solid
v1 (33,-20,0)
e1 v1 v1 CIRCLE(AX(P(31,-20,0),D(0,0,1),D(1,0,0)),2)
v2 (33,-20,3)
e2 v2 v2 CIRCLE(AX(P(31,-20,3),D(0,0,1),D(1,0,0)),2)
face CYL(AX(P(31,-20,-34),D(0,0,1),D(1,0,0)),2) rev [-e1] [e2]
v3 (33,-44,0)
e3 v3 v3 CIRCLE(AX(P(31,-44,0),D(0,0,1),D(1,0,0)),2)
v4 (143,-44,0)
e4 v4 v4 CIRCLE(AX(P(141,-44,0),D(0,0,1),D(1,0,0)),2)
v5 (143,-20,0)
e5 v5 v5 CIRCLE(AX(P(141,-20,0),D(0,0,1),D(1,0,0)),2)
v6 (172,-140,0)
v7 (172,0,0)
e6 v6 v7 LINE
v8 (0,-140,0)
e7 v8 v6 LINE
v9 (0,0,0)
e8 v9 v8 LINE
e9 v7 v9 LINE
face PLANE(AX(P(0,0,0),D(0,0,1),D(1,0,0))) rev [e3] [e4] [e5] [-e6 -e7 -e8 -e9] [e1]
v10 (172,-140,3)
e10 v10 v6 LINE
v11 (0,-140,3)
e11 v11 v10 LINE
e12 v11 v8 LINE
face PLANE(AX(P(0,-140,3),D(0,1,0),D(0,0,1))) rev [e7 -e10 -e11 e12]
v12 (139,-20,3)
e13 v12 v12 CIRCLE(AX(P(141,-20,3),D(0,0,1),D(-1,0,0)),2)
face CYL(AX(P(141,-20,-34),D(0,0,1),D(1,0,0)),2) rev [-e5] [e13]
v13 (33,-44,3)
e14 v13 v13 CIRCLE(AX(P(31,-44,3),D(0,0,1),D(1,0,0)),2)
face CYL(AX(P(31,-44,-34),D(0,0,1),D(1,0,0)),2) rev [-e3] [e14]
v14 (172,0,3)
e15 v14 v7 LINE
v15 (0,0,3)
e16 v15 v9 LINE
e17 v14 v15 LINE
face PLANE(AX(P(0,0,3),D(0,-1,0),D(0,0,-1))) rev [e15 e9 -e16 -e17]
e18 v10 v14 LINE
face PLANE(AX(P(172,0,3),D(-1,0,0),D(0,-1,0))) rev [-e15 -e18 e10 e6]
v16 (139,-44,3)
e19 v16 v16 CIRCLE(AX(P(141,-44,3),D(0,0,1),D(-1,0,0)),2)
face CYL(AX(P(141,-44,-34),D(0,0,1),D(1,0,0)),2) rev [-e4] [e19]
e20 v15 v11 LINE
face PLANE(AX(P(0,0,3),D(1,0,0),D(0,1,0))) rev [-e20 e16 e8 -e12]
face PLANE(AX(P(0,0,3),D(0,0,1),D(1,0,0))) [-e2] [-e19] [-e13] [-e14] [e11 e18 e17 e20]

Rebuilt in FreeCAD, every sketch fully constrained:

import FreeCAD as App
import Part
import Sketcher
Q = App.Units.Quantity


def add_polygon(sketch, points):
    """Adds a closed chain of lines whose ends are joined by coincident constraints."""
    first, n = sketch.GeometryCount, len(points)
    for a, b in zip(points, points[1:] + points[:1]):
        sketch.addGeometry(Part.LineSegment(App.Vector(*a, 0), App.Vector(*b, 0)), False)
    for i in range(n):
        sketch.addConstraint(Sketcher.Constraint("Coincident", first + i, 2, first + (i + 1) % n, 1))

doc = App.newDocument("Part")
body = doc.addObject("PartDesign::Body", "Body")

# Sketch on XY plane
sketch1 = doc.addObject("Sketcher::SketchObject", "Sketch")
body.addObject(sketch1)
sketch1.AttachmentSupport = (doc.XY_Plane, [""])
sketch1.MapMode = "FlatFace"
add_polygon(sketch1, [(0, 0), (0, -140), (172, -140), (172, 0)])  # lines 0-3
sketch1.addConstraint([
    Sketcher.Constraint("Vertical", 0),
    Sketcher.Constraint("Horizontal", 1),
    Sketcher.Constraint("Vertical", 2),
    Sketcher.Constraint("Horizontal", 3),
    Sketcher.Constraint("Coincident", 3, 2, -1, 1),
    Sketcher.Constraint("DistanceX", 1, 1, 1, 2, Q("172 mm")),
    Sketcher.Constraint("DistanceY", 0, 2, 0, 1, Q("140 mm")),
])
pad1 = doc.addObject("PartDesign::Pad", "Pad")
body.addObject(pad1)
pad1.Profile = sketch1
pad1.Length = 3

# Sketch on XY plane
sketch2 = doc.addObject("Sketcher::SketchObject", "Sketch001")
body.addObject(sketch2)
sketch2.AttachmentSupport = (doc.XY_Plane, [""])
sketch2.MapMode = "FlatFace"
sketch2.AttachmentOffset = App.Placement(App.Vector(0, 0, 3), App.Rotation())
sketch2.addGeometry([
    Part.Circle(App.Vector(31, -20, 0), App.Vector(0, 0, 1), 2),
    Part.Circle(App.Vector(31, -44, 0), App.Vector(0, 0, 1), 2),
    Part.Circle(App.Vector(141, -44, 0), App.Vector(0, 0, 1), 2),
    Part.Circle(App.Vector(141, -20, 0), App.Vector(0, 0, 1), 2),
], False)
sketch2.addConstraint([
    Sketcher.Constraint("Equal", 0, 1),
    Sketcher.Constraint("Equal", 1, 2),
    Sketcher.Constraint("Equal", 2, 3),
    Sketcher.Constraint("Horizontal", 1, 3, 2, 3),
    Sketcher.Constraint("Horizontal", 0, 3, 3, 3),
    Sketcher.Constraint("Vertical", 0, 3, 1, 3),
    Sketcher.Constraint("Vertical", 2, 3, 3, 3),
    Sketcher.Constraint("Diameter", 0, Q("4 mm")),
    Sketcher.Constraint("DistanceX", -1, 1, 0, 3, Q("31 mm")),
    Sketcher.Constraint("DistanceY", 0, 3, -1, 1, Q("20 mm")),
    Sketcher.Constraint("DistanceY", 1, 3, -1, 1, Q("44 mm")),
    Sketcher.Constraint("DistanceX", -1, 1, 2, 3, Q("141 mm")),
])
pocket1 = doc.addObject("PartDesign::Pocket", "Pocket")
body.addObject(pocket1)
pocket1.Profile = sketch2
pocket1.Length = 37

doc.recompute()
